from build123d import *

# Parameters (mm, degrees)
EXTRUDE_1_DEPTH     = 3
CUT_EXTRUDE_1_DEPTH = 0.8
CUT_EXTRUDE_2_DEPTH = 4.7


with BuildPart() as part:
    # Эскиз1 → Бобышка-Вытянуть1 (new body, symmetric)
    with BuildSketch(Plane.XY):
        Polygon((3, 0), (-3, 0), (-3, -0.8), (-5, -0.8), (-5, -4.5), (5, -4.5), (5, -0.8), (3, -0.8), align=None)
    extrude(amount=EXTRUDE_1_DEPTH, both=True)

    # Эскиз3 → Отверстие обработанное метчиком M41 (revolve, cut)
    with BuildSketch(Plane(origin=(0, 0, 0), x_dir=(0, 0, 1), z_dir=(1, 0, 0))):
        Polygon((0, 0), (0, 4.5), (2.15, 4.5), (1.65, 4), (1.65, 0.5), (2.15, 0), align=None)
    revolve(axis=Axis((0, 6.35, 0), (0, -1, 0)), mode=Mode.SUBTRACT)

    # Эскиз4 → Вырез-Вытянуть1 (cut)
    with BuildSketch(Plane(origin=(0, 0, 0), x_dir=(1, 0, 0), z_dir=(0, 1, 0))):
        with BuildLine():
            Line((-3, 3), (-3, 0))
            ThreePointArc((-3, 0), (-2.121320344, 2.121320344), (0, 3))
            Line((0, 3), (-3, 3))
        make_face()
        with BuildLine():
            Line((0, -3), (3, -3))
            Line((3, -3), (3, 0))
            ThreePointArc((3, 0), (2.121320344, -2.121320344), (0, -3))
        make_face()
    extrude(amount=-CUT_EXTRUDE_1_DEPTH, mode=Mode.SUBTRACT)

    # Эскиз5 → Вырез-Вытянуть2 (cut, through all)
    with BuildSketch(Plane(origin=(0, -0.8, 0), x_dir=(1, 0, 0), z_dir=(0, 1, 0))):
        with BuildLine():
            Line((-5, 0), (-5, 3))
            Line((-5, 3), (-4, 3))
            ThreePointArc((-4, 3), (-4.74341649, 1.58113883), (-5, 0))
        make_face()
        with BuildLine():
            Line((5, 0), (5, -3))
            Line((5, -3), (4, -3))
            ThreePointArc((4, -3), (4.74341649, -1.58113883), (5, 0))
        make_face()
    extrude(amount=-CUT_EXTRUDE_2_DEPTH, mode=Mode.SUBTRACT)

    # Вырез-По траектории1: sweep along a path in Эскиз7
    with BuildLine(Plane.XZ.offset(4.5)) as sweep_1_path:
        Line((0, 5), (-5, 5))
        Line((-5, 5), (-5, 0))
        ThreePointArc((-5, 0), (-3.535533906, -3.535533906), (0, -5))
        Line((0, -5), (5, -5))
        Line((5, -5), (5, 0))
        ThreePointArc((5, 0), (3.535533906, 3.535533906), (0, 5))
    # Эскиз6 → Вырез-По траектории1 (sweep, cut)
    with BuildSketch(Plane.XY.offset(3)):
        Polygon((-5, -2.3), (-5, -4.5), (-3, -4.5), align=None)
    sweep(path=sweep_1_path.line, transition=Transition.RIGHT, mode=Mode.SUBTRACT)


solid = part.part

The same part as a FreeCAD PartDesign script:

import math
import FreeCAD as App
import Part
import Sketcher

doc = App.newDocument("Part")
params = doc.addObject("Spreadsheet::Sheet", "Params")
for row, (alias, value) in enumerate([
    ("sketch1_width", "6 mm"),
    ("sketch1_width2", "2 mm"),
    ("sketch1_height", "0.8 mm"),
    ("sketch1_height2", "3.7 mm"),
    ("pad1_length", "6 mm"),
    ("sketch2_width", "4.5 mm"),
    ("sketch2_width2", "3.5 mm"),
    ("sketch2_height", "2.15 mm"),
    ("groove_angle", "360 deg"),
    ("sketch3_radius", "3 mm"),
    ("pocket1_length", "0.8 mm"),
    ("sketch4_radius", "5 mm"),
    ("sketch4_width", "1 mm"),
    ("sketch5_width", "2 mm"),
    ("sketch5_height", "2.2 mm"),
    ("sketch6_radius", "5 mm"),
], start=1):
    params.set(f"A{row}", alias)
    params.set(f"B{row}", "=" + value)
    params.setAlias(f"B{row}", alias)

body = doc.addObject("PartDesign::Body", "Body")

# Sketch on XY plane
sketch1 = body.newObject("Sketcher::SketchObject", "Sketch")
sketch1.AttachmentSupport = (doc.getObject("XY_Plane"), [""])
sketch1.MapMode = "FlatFace"
sketch1.addGeometry(Part.LineSegment(App.Vector(3, 0, 0), App.Vector(-3, 0, 0)), False)
sketch1.addGeometry(Part.LineSegment(App.Vector(-3, 0, 0), App.Vector(-3, -0.8, 0)), False)
sketch1.addGeometry(Part.LineSegment(App.Vector(-3, -0.8, 0), App.Vector(-5, -0.8, 0)), False)
sketch1.addGeometry(Part.LineSegment(App.Vector(-5, -0.8, 0), App.Vector(-5, -4.5, 0)), False)
sketch1.addGeometry(Part.LineSegment(App.Vector(-5, -4.5, 0), App.Vector(5, -4.5, 0)), False)
sketch1.addGeometry(Part.LineSegment(App.Vector(5, -4.5, 0), App.Vector(5, -0.8, 0)), False)
sketch1.addGeometry(Part.LineSegment(App.Vector(5, -0.8, 0), App.Vector(3, -0.8, 0)), False)
sketch1.addGeometry(Part.LineSegment(App.Vector(3, -0.8, 0), App.Vector(3, 0, 0)), False)
sketch1.addConstraint(Sketcher.Constraint("Coincident", 0, 2, 1, 1))
sketch1.addConstraint(Sketcher.Constraint("Coincident", 1, 2, 2, 1))
sketch1.addConstraint(Sketcher.Constraint("Coincident", 2, 2, 3, 1))
sketch1.addConstraint(Sketcher.Constraint("Coincident", 3, 2, 4, 1))
sketch1.addConstraint(Sketcher.Constraint("Coincident", 4, 2, 5, 1))
sketch1.addConstraint(Sketcher.Constraint("Coincident", 5, 2, 6, 1))
sketch1.addConstraint(Sketcher.Constraint("Coincident", 6, 2, 7, 1))
sketch1.addConstraint(Sketcher.Constraint("Coincident", 7, 2, 0, 1))
sketch1.addConstraint(Sketcher.Constraint("Horizontal", 0))
sketch1.addConstraint(Sketcher.Constraint("Vertical", 1))
sketch1.addConstraint(Sketcher.Constraint("Horizontal", 2))
sketch1.addConstraint(Sketcher.Constraint("Vertical", 3))
sketch1.addConstraint(Sketcher.Constraint("Horizontal", 4))
sketch1.addConstraint(Sketcher.Constraint("Vertical", 5))
sketch1.addConstraint(Sketcher.Constraint("Horizontal", 6))
sketch1.addConstraint(Sketcher.Constraint("Vertical", 7))
sketch1.addConstraint(Sketcher.Constraint("Symmetric", 0, 2, 7, 2, -1, 1))
sketch1.addConstraint(Sketcher.Constraint("Symmetric", 2, 2, 5, 2, -2))
sketch1.addConstraint(Sketcher.Constraint("DistanceX", 0, 2, 0, 1, 6.0))
sketch1.addConstraint(Sketcher.Constraint("DistanceX", 2, 2, 2, 1, 2.0))
sketch1.addConstraint(Sketcher.Constraint("DistanceY", 1, 2, 1, 1, 0.8))
sketch1.addConstraint(Sketcher.Constraint("DistanceY", 3, 2, 3, 1, 3.7))
sketch1.setExpression("Constraints[18]", "Params.sketch1_width")
sketch1.setExpression("Constraints[19]", "Params.sketch1_width2")
sketch1.setExpression("Constraints[20]", "Params.sketch1_height")
sketch1.setExpression("Constraints[21]", "Params.sketch1_height2")
pad1 = body.newObject("PartDesign::Pad", "Pad")
pad1.Profile = sketch1
pad1.setExpression("Length", "Params.pad1_length")
pad1.Midplane = True

# Sketch on YZ plane
sketch2 = body.newObject("Sketcher::SketchObject", "Sketch001")
sketch2.AttachmentSupport = (doc.getObject("YZ_Plane"), [""])
sketch2.MapMode = "FlatFace"
sketch2.addGeometry(Part.LineSegment(App.Vector(-4.5, 0, 0), App.Vector(0, 0, 0)), False)
sketch2.addGeometry(Part.LineSegment(App.Vector(0, 0, 0), App.Vector(0, 2.15, 0)), False)
sketch2.addGeometry(Part.LineSegment(App.Vector(0, 2.15, 0), App.Vector(-0.5, 1.65, 0)), False)
sketch2.addGeometry(Part.LineSegment(App.Vector(-0.5, 1.65, 0), App.Vector(-4, 1.65, 0)), False)
sketch2.addGeometry(Part.LineSegment(App.Vector(-4, 1.65, 0), App.Vector(-4.5, 2.15, 0)), False)
sketch2.addGeometry(Part.LineSegment(App.Vector(-4.5, 2.15, 0), App.Vector(-4.5, 0, 0)), False)
sketch2.addConstraint(Sketcher.Constraint("Coincident", 0, 2, 1, 1))
sketch2.addConstraint(Sketcher.Constraint("Coincident", 1, 2, 2, 1))
sketch2.addConstraint(Sketcher.Constraint("Coincident", 2, 2, 3, 1))
sketch2.addConstraint(Sketcher.Constraint("Coincident", 3, 2, 4, 1))
sketch2.addConstraint(Sketcher.Constraint("Coincident", 4, 2, 5, 1))
sketch2.addConstraint(Sketcher.Constraint("Coincident", 5, 2, 0, 1))
sketch2.addConstraint(Sketcher.Constraint("Horizontal", 0))
sketch2.addConstraint(Sketcher.Constraint("Vertical", 1))
sketch2.addConstraint(Sketcher.Constraint("Horizontal", 3))
sketch2.addConstraint(Sketcher.Constraint("Vertical", 5))
sketch2.addConstraint(Sketcher.Constraint("Coincident", 0, 2, -1, 1))
sketch2.addConstraint(Sketcher.Constraint("Perpendicular", 2, 4))
sketch2.addConstraint(Sketcher.Constraint("Horizontal", 1, 2, 4, 2))
sketch2.addConstraint(Sketcher.Constraint("Equal", 2, 4))
sketch2.addConstraint(Sketcher.Constraint("DistanceX", 0, 1, 0, 2, 4.5))
sketch2.addConstraint(Sketcher.Constraint("DistanceX", 3, 2, 3, 1, 3.5))
sketch2.addConstraint(Sketcher.Constraint("DistanceY", 1, 1, 1, 2, 2.15))
sketch2.setExpression("Constraints[14]", "Params.sketch2_width")
sketch2.setExpression("Constraints[15]", "Params.sketch2_width2")
sketch2.setExpression("Constraints[16]", "Params.sketch2_height")
groove = body.newObject("PartDesign::Groove", "Groove")
groove.Profile = sketch2
groove.ReferenceAxis = (sketch2, ["H_Axis"])
groove.setExpression("Angle", "Params.groove_angle")

# Sketch on XZ plane
sketch3 = body.newObject("Sketcher::SketchObject", "Sketch002")
sketch3.AttachmentSupport = (doc.getObject("XZ_Plane"), [""])
sketch3.MapMode = "FlatFace"
sketch3.addGeometry(Part.LineSegment(App.Vector(-3, -3, 0), App.Vector(-3, 0, 0)), False)
sketch3.addGeometry(Part.ArcOfCircle(Part.Circle(App.Vector(0, 0, 0), App.Vector(0, 0, 1), 3), math.radians(180), math.radians(270)), False)
sketch3.addGeometry(Part.LineSegment(App.Vector(0, -3, 0), App.Vector(-3, -3, 0)), False)
sketch3.addGeometry(Part.LineSegment(App.Vector(0, 3, 0), App.Vector(3, 3, 0)), False)
sketch3.addGeometry(Part.LineSegment(App.Vector(3, 3, 0), App.Vector(3, 0, 0)), False)
sketch3.addGeometry(Part.ArcOfCircle(Part.Circle(App.Vector(0, 0, 0), App.Vector(0, 0, 1), 3), math.radians(0), math.radians(90)), False)
sketch3.addConstraint(Sketcher.Constraint("Tangent", 0, 2, 1, 1))
sketch3.addConstraint(Sketcher.Constraint("Tangent", 1, 2, 2, 1))
sketch3.addConstraint(Sketcher.Constraint("Coincident", 2, 2, 0, 1))
sketch3.addConstraint(Sketcher.Constraint("Coincident", 3, 2, 4, 1))
sketch3.addConstraint(Sketcher.Constraint("Tangent", 4, 2, 5, 1))
sketch3.addConstraint(Sketcher.Constraint("Tangent", 5, 2, 3, 1))
sketch3.addConstraint(Sketcher.Constraint("Vertical", 0))
sketch3.addConstraint(Sketcher.Constraint("Horizontal", 2))
sketch3.addConstraint(Sketcher.Constraint("Horizontal", 3))
sketch3.addConstraint(Sketcher.Constraint("Vertical", 4))
sketch3.addConstraint(Sketcher.Constraint("Coincident", 1, 3, -1, 1))
sketch3.addConstraint(Sketcher.Constraint("Coincident", 5, 3, -1, 1))
sketch3.addConstraint(Sketcher.Constraint("Equal", 1, 5))
sketch3.addConstraint(Sketcher.Constraint("Radius", 1, 3.0))
sketch3.setExpression("Constraints[13]", "Params.sketch3_radius")
pocket1 = body.newObject("PartDesign::Pocket", "Pocket")
pocket1.Profile = sketch3
pocket1.setExpression("Length", "Params.pocket1_length")
pocket1.Reversed = True

# Sketch on XZ plane
sketch4 = body.newObject("Sketcher::SketchObject", "Sketch003")
sketch4.AttachmentSupport = (doc.getObject("XZ_Plane"), [""])
sketch4.MapMode = "FlatFace"
sketch4.AttachmentOffset = App.Placement(App.Vector(0, 0, 0.8), App.Rotation())
sketch4.addGeometry(Part.LineSegment(App.Vector(-5, -3, 0), App.Vector(-5, 0, 0)), False)
sketch4.addGeometry(Part.ArcOfCircle(Part.Circle(App.Vector(0, 0, 0), App.Vector(0, 0, 1), 5), math.radians(-180), math.radians(-143.130102)), False)
sketch4.addGeometry(Part.LineSegment(App.Vector(-4, -3, 0), App.Vector(-5, -3, 0)), False)
sketch4.addGeometry(Part.LineSegment(App.Vector(5, 3, 0), App.Vector(5, 0, 0)), False)
sketch4.addGeometry(Part.ArcOfCircle(Part.Circle(App.Vector(0, 0, 0), App.Vector(0, 0, 1), 5), math.radians(0), math.radians(36.869898)), False)
sketch4.addGeometry(Part.LineSegment(App.Vector(4, 3, 0), App.Vector(5, 3, 0)), False)
sketch4.addConstraint(Sketcher.Constraint("Tangent", 0, 2, 1, 1))
sketch4.addConstraint(Sketcher.Constraint("Coincident", 1, 2, 2, 1))
sketch4.addConstraint(Sketcher.Constraint("Coincident", 2, 2, 0, 1))
sketch4.addConstraint(Sketcher.Constraint("Tangent", 3, 2, 4, 1))
sketch4.addConstraint(Sketcher.Constraint("Coincident", 4, 2, 5, 1))
sketch4.addConstraint(Sketcher.Constraint("Coincident", 5, 2, 3, 1))
sketch4.addConstraint(Sketcher.Constraint("Vertical", 0))
sketch4.addConstraint(Sketcher.Constraint("Horizontal", 2))
sketch4.addConstraint(Sketcher.Constraint("Vertical", 3))
sketch4.addConstraint(Sketcher.Constraint("Horizontal", 5))
sketch4.addConstraint(Sketcher.Constraint("Coincident", 1, 3, -1, 1))
sketch4.addConstraint(Sketcher.Constraint("Coincident", 4, 3, -1, 1))
sketch4.addConstraint(Sketcher.Constraint("Equal", 1, 4))
sketch4.addConstraint(Sketcher.Constraint("Equal", 2, 5))
sketch4.addConstraint(Sketcher.Constraint("Radius", 1, 5.0))
sketch4.addConstraint(Sketcher.Constraint("DistanceX", 2, 2, 2, 1, 1.0))
sketch4.setExpression("Constraints[14]", "Params.sketch4_radius")
sketch4.setExpression("Constraints[15]", "Params.sketch4_width")
pocket2 = body.newObject("PartDesign::Pocket", "Pocket001")
pocket2.Profile = sketch4
pocket2.Type = "ThroughAll"
pocket2.Reversed = True

# Sketch on XY plane
sketch5 = body.newObject("Sketcher::SketchObject", "Sketch004")
sketch5.AttachmentSupport = (doc.getObject("XY_Plane"), [""])
sketch5.MapMode = "FlatFace"
sketch5.AttachmentOffset = App.Placement(App.Vector(0, 0, 3), App.Rotation())
sketch5.addGeometry(Part.LineSegment(App.Vector(-5, -2.3, 0), App.Vector(-5, -4.5, 0)), False)
sketch5.addGeometry(Part.LineSegment(App.Vector(-5, -4.5, 0), App.Vector(-3, -4.5, 0)), False)
sketch5.addGeometry(Part.LineSegment(App.Vector(-3, -4.5, 0), App.Vector(-5, -2.3, 0)), False)
sketch5.addConstraint(Sketcher.Constraint("Coincident", 0, 2, 1, 1))
sketch5.addConstraint(Sketcher.Constraint("Coincident", 1, 2, 2, 1))
sketch5.addConstraint(Sketcher.Constraint("Coincident", 2, 2, 0, 1))
sketch5.addConstraint(Sketcher.Constraint("Vertical", 0))
sketch5.addConstraint(Sketcher.Constraint("Horizontal", 1))
sketch5.addConstraint(Sketcher.Constraint("DistanceX", 1, 1, 1, 2, 2.0))
sketch5.addConstraint(Sketcher.Constraint("DistanceY", 0, 2, 0, 1, 2.2))
sketch5.addConstraint(Sketcher.Constraint("DistanceX", 0, 2, -1, 1, 5.0))
sketch5.addConstraint(Sketcher.Constraint("DistanceY", 0, 2, -1, 1, 4.5))
sketch5.setExpression("Constraints[5]", "Params.sketch5_width")
sketch5.setExpression("Constraints[6]", "Params.sketch5_height")

# Sketch on XZ plane
sketch6 = body.newObject("Sketcher::SketchObject", "Sketch005")
sketch6.AttachmentSupport = (doc.getObject("XZ_Plane"), [""])
sketch6.MapMode = "FlatFace"
sketch6.AttachmentOffset = App.Placement(App.Vector(0, 0, 4.5), App.Rotation())
sketch6.addGeometry(Part.LineSegment(App.Vector(0, 5, 0), App.Vector(-5, 5, 0)), False)
sketch6.addGeometry(Part.LineSegment(App.Vector(-5, 5, 0), App.Vector(-5, 0, 0)), False)
sketch6.addGeometry(Part.ArcOfCircle(Part.Circle(App.Vector(0, 0, 0), App.Vector(0, 0, 1), 5), math.radians(180), math.radians(270)), False)
sketch6.addGeometry(Part.LineSegment(App.Vector(0, -5, 0), App.Vector(5, -5, 0)), False)
sketch6.addGeometry(Part.LineSegment(App.Vector(5, -5, 0), App.Vector(5, 0, 0)), False)
sketch6.addGeometry(Part.ArcOfCircle(Part.Circle(App.Vector(0, 0, 0), App.Vector(0, 0, 1), 5), math.radians(0), math.radians(90)), False)
sketch6.addConstraint(Sketcher.Constraint("Coincident", 0, 2, 1, 1))
sketch6.addConstraint(Sketcher.Constraint("Tangent", 1, 2, 2, 1))
sketch6.addConstraint(Sketcher.Constraint("Tangent", 2, 2, 3, 1))
sketch6.addConstraint(Sketcher.Constraint("Coincident", 3, 2, 4, 1))
sketch6.addConstraint(Sketcher.Constraint("Tangent", 4, 2, 5, 1))
sketch6.addConstraint(Sketcher.Constraint("Tangent", 5, 2, 0, 1))
sketch6.addConstraint(Sketcher.Constraint("Horizontal", 0))
sketch6.addConstraint(Sketcher.Constraint("Vertical", 1))
sketch6.addConstraint(Sketcher.Constraint("Horizontal", 3))
sketch6.addConstraint(Sketcher.Constraint("Vertical", 4))
sketch6.addConstraint(Sketcher.Constraint("Coincident", 2, 3, -1, 1))
sketch6.addConstraint(Sketcher.Constraint("Coincident", 5, 3, -1, 1))
sketch6.addConstraint(Sketcher.Constraint("Equal", 2, 5))
sketch6.addConstraint(Sketcher.Constraint("Radius", 2, 5.0))
sketch6.setExpression("Constraints[13]", "Params.sketch6_radius")
doc.recompute()

subtractivepipe = body.newObject("PartDesign::SubtractivePipe", "SubtractivePipe")
subtractivepipe.Profile = sketch5
subtractivepipe.Spine = (sketch6, ["Edge1", "Edge2", "Edge3", "Edge4", "Edge5", "Edge6"])
subtractivepipe.Transition = "Right corner"

doc.recompute()
